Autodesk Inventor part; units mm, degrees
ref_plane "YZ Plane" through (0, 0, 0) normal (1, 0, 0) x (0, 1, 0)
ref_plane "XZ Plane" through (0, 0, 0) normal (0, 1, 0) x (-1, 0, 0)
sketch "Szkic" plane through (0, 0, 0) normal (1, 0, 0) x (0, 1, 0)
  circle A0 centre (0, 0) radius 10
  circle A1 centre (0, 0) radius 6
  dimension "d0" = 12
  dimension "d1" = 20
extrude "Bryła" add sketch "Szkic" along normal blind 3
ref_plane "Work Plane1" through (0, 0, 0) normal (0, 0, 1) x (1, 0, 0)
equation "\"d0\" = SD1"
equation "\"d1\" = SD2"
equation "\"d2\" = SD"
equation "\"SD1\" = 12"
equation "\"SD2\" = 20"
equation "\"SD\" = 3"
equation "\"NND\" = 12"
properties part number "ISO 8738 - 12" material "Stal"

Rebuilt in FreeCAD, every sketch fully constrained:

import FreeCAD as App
import Part
import Sketcher
Q = App.Units.Quantity

doc = App.newDocument("Part")
body = doc.addObject("PartDesign::Body", "Body")

# Sketch on YZ plane
sketch1 = body.newObject("Sketcher::SketchObject", "Sketch")
sketch1.AttachmentSupport = (doc.getObject("YZ_Plane"), [""])
sketch1.MapMode = "FlatFace"
sketch1.addGeometry([
    Part.Circle(App.Vector(0, 0, 0), App.Vector(0, 0, 1), 10),
    Part.Circle(App.Vector(0, 0, 0), App.Vector(0, 0, 1), 6),
], False)
sketch1.addConstraint([
    Sketcher.Constraint("Coincident", 0, 3, -1, 1),
    Sketcher.Constraint("Coincident", 1, 3, -1, 1),
    Sketcher.Constraint("Diameter", 0, Q("20 mm")),
    Sketcher.Constraint("Diameter", 1, Q("12 mm")),
])
pad1 = body.newObject("PartDesign::Pad", "Pad")
pad1.Profile = sketch1
pad1.Length = 3

doc.recompute()
